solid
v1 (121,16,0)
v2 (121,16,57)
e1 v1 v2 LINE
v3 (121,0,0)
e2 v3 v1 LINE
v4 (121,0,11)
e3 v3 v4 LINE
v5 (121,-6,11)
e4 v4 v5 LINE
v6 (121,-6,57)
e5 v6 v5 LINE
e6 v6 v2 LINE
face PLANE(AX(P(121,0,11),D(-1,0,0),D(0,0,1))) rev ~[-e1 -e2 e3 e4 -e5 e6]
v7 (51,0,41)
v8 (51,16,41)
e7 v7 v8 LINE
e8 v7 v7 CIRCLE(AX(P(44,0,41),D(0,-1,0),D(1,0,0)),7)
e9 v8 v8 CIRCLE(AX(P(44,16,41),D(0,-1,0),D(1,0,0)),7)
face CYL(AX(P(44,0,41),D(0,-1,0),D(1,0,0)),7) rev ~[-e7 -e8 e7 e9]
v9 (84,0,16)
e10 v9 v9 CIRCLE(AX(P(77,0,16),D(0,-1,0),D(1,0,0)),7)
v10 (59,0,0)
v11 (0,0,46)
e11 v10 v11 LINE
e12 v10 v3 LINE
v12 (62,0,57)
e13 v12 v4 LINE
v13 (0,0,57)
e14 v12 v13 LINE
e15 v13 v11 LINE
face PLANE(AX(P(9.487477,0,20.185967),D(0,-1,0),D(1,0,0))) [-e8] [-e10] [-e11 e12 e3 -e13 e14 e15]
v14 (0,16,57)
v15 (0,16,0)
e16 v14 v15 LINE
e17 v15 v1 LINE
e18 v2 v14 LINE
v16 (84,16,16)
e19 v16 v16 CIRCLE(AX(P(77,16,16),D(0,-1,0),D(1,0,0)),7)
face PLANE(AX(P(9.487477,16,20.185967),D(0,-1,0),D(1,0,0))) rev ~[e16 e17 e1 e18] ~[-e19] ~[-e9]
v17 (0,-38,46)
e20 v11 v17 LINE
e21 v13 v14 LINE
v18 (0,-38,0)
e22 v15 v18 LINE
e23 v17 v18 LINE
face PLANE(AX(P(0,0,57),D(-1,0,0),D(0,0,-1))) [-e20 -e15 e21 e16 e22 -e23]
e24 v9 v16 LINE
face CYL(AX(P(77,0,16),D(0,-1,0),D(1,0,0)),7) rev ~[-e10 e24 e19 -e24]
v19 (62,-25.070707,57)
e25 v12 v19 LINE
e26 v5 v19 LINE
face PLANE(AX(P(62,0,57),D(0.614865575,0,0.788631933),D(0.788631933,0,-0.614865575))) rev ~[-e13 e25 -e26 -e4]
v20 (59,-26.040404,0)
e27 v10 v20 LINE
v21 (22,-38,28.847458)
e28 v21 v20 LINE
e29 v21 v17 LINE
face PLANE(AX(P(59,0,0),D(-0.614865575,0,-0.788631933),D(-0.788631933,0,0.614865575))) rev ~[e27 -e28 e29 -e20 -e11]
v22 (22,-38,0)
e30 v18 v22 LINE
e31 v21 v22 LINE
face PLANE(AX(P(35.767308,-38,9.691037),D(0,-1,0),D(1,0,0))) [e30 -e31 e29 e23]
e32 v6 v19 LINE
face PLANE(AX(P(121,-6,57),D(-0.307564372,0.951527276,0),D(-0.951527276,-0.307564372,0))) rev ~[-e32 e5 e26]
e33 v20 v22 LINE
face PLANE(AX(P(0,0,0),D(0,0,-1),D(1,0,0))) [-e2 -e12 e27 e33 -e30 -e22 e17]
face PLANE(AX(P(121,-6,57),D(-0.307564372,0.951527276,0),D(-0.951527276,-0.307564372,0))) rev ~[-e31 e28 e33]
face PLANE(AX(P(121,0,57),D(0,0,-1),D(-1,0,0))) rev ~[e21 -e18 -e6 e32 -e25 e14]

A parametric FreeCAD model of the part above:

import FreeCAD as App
import Part
import Sketcher


def add_polygon(sketch, points):
    """Adds a closed chain of lines whose ends are joined by coincident constraints."""
    first, n = sketch.GeometryCount, len(points)
    for a, b in zip(points, points[1:] + points[:1]):
        sketch.addGeometry(Part.LineSegment(App.Vector(*a, 0), App.Vector(*b, 0)), False)
    for i in range(n):
        sketch.addConstraint(Sketcher.Constraint("Coincident", first + i, 2, first + (i + 1) % n, 1))

doc = App.newDocument("Part")
params = doc.addObject("Spreadsheet::Sheet", "Params")
for row, (alias, value) in enumerate([
    ("sketch1_width", "121 mm"),
    ("sketch1_height", "57 mm"),
    ("pad1_length", "16 mm"),
    ("sketch2_width", "59 mm"),
    ("sketch2_height", "46 mm"),
    ("pad2_length", "38 mm"),
    ("sketch3_diameter", "14 mm"),
    ("pocket1_length", "25 mm"),
    ("sketch4_width", "99 mm"),
    ("sketch4_height", "32 mm"),
    ("pocket2_length", "57 mm"),
], start=1):
    params.set(f"A{row}", alias)
    params.set(f"B{row}", "=" + value)
    params.setAlias(f"B{row}", alias)

body = doc.addObject("PartDesign::Body", "Body")

sketch1 = body.newObject("Sketcher::SketchObject", "Sketch")
sketch1.AttachmentSupport = (doc.getObject("XZ_Plane"), [""])
sketch1.MapMode = "FlatFace"
add_polygon(sketch1, [(0, 0), (121, 0), (121, 57), (0, 57)])
sketch1.addConstraint(Sketcher.Constraint("Horizontal", 0))
sketch1.addConstraint(Sketcher.Constraint("Vertical", 1))
sketch1.addConstraint(Sketcher.Constraint("Horizontal", 2))
sketch1.addConstraint(Sketcher.Constraint("Vertical", 3))
sketch1.addConstraint(Sketcher.Constraint("Coincident", 3, 2, -1, 1))
sketch1.addConstraint(Sketcher.Constraint("DistanceX", 0, 1, 0, 2, 121.0))
sketch1.addConstraint(Sketcher.Constraint("DistanceY", 1, 1, 1, 2, 57.0))
sketch1.setExpression("Constraints[9]", "Params.sketch1_width")
sketch1.setExpression("Constraints[10]", "Params.sketch1_height")
pad1 = body.newObject("PartDesign::Pad", "Pad")
pad1.Profile = sketch1
pad1.setExpression("Length", "Params.pad1_length")
pad1.Reversed = True

sketch2 = body.newObject("Sketcher::SketchObject", "Sketch001")
sketch2.AttachmentSupport = (doc.getObject("XZ_Plane"), [""])
sketch2.MapMode = "FlatFace"
add_polygon(sketch2, [(121, 57), (62, 57), (121, 11)])
add_polygon(sketch2, [(59, 0), (0, 46), (0, 0)])
sketch2.addConstraint(Sketcher.Constraint("Horizontal", 0))
sketch2.addConstraint(Sketcher.Constraint("Vertical", 2))
sketch2.addConstraint(Sketcher.Constraint("Vertical", 4))
sketch2.addConstraint(Sketcher.Constraint("Horizontal", 5))
sketch2.addConstraint(Sketcher.Constraint("Coincident", 4, 2, -1, 1))
sketch2.addConstraint(Sketcher.Constraint("Parallel", 1, 3))
sketch2.addConstraint(Sketcher.Constraint("Equal", 0, 5))
sketch2.addConstraint(Sketcher.Constraint("DistanceX", 0, 2, 0, 1, 59.0))
sketch2.addConstraint(Sketcher.Constraint("DistanceY", 2, 1, 2, 2, 46.0))
sketch2.addConstraint(Sketcher.Constraint("DistanceX", -1, 1, 0, 2, 62.0))
sketch2.addConstraint(Sketcher.Constraint("DistanceY", -1, 1, 0, 2, 57.0))
sketch2.setExpression("Constraints[13]", "Params.sketch2_width")
sketch2.setExpression("Constraints[14]", "Params.sketch2_height")
pad2 = body.newObject("PartDesign::Pad", "Pad001")
pad2.Profile = sketch2
pad2.setExpression("Length", "Params.pad2_length")

sketch3 = body.newObject("Sketcher::SketchObject", "Sketch002")
sketch3.AttachmentSupport = (doc.getObject("XZ_Plane"), [""])
sketch3.MapMode = "FlatFace"
sketch3.addGeometry(Part.Circle(App.Vector(77, 16, 0), App.Vector(0, 0, 1), 7), False)
sketch3.addGeometry(Part.Circle(App.Vector(44, 41, 0), App.Vector(0, 0, 1), 7), False)
sketch3.addConstraint(Sketcher.Constraint("Equal", 0, 1))
sketch3.addConstraint(Sketcher.Constraint("Diameter", 0, 14.0))
sketch3.addConstraint(Sketcher.Constraint("DistanceX", -1, 1, 0, 3, 77.0))
sketch3.addConstraint(Sketcher.Constraint("DistanceY", -1, 1, 0, 3, 16.0))
sketch3.addConstraint(Sketcher.Constraint("DistanceX", -1, 1, 1, 3, 44.0))
sketch3.addConstraint(Sketcher.Constraint("DistanceY", -1, 1, 1, 3, 41.0))
sketch3.setExpression("Constraints[1]", "Params.sketch3_diameter")
pocket1 = body.newObject("PartDesign::Pocket", "Pocket")
pocket1.Profile = sketch3
pocket1.setExpression("Length", "Params.pocket1_length")

sketch4 = body.newObject("Sketcher::SketchObject", "Sketch003")
sketch4.AttachmentSupport = (doc.getObject("XY_Plane"), [""])
sketch4.MapMode = "FlatFace"
sketch4.AttachmentOffset = App.Placement(App.Vector(0, 0, 57), App.Rotation())
add_polygon(sketch4, [(121, -38), (121, -6), (22, -38)])
sketch4.addConstraint(Sketcher.Constraint("Vertical", 0))
sketch4.addConstraint(Sketcher.Constraint("Horizontal", 2))
sketch4.addConstraint(Sketcher.Constraint("DistanceX", 2, 1, 2, 2, 99.0))
sketch4.addConstraint(Sketcher.Constraint("DistanceY", 0, 1, 0, 2, 32.0))
sketch4.addConstraint(Sketcher.Constraint("DistanceX", -1, 1, 0, 2, 121.0))
sketch4.addConstraint(Sketcher.Constraint("DistanceY", 0, 2, -1, 1, 6.0))
sketch4.setExpression("Constraints[5]", "Params.sketch4_width")
sketch4.setExpression("Constraints[6]", "Params.sketch4_height")
pocket2 = body.newObject("PartDesign::Pocket", "Pocket001")
pocket2.Profile = sketch4
pocket2.setExpression("Length", "Params.pocket2_length")

doc.recompute()
